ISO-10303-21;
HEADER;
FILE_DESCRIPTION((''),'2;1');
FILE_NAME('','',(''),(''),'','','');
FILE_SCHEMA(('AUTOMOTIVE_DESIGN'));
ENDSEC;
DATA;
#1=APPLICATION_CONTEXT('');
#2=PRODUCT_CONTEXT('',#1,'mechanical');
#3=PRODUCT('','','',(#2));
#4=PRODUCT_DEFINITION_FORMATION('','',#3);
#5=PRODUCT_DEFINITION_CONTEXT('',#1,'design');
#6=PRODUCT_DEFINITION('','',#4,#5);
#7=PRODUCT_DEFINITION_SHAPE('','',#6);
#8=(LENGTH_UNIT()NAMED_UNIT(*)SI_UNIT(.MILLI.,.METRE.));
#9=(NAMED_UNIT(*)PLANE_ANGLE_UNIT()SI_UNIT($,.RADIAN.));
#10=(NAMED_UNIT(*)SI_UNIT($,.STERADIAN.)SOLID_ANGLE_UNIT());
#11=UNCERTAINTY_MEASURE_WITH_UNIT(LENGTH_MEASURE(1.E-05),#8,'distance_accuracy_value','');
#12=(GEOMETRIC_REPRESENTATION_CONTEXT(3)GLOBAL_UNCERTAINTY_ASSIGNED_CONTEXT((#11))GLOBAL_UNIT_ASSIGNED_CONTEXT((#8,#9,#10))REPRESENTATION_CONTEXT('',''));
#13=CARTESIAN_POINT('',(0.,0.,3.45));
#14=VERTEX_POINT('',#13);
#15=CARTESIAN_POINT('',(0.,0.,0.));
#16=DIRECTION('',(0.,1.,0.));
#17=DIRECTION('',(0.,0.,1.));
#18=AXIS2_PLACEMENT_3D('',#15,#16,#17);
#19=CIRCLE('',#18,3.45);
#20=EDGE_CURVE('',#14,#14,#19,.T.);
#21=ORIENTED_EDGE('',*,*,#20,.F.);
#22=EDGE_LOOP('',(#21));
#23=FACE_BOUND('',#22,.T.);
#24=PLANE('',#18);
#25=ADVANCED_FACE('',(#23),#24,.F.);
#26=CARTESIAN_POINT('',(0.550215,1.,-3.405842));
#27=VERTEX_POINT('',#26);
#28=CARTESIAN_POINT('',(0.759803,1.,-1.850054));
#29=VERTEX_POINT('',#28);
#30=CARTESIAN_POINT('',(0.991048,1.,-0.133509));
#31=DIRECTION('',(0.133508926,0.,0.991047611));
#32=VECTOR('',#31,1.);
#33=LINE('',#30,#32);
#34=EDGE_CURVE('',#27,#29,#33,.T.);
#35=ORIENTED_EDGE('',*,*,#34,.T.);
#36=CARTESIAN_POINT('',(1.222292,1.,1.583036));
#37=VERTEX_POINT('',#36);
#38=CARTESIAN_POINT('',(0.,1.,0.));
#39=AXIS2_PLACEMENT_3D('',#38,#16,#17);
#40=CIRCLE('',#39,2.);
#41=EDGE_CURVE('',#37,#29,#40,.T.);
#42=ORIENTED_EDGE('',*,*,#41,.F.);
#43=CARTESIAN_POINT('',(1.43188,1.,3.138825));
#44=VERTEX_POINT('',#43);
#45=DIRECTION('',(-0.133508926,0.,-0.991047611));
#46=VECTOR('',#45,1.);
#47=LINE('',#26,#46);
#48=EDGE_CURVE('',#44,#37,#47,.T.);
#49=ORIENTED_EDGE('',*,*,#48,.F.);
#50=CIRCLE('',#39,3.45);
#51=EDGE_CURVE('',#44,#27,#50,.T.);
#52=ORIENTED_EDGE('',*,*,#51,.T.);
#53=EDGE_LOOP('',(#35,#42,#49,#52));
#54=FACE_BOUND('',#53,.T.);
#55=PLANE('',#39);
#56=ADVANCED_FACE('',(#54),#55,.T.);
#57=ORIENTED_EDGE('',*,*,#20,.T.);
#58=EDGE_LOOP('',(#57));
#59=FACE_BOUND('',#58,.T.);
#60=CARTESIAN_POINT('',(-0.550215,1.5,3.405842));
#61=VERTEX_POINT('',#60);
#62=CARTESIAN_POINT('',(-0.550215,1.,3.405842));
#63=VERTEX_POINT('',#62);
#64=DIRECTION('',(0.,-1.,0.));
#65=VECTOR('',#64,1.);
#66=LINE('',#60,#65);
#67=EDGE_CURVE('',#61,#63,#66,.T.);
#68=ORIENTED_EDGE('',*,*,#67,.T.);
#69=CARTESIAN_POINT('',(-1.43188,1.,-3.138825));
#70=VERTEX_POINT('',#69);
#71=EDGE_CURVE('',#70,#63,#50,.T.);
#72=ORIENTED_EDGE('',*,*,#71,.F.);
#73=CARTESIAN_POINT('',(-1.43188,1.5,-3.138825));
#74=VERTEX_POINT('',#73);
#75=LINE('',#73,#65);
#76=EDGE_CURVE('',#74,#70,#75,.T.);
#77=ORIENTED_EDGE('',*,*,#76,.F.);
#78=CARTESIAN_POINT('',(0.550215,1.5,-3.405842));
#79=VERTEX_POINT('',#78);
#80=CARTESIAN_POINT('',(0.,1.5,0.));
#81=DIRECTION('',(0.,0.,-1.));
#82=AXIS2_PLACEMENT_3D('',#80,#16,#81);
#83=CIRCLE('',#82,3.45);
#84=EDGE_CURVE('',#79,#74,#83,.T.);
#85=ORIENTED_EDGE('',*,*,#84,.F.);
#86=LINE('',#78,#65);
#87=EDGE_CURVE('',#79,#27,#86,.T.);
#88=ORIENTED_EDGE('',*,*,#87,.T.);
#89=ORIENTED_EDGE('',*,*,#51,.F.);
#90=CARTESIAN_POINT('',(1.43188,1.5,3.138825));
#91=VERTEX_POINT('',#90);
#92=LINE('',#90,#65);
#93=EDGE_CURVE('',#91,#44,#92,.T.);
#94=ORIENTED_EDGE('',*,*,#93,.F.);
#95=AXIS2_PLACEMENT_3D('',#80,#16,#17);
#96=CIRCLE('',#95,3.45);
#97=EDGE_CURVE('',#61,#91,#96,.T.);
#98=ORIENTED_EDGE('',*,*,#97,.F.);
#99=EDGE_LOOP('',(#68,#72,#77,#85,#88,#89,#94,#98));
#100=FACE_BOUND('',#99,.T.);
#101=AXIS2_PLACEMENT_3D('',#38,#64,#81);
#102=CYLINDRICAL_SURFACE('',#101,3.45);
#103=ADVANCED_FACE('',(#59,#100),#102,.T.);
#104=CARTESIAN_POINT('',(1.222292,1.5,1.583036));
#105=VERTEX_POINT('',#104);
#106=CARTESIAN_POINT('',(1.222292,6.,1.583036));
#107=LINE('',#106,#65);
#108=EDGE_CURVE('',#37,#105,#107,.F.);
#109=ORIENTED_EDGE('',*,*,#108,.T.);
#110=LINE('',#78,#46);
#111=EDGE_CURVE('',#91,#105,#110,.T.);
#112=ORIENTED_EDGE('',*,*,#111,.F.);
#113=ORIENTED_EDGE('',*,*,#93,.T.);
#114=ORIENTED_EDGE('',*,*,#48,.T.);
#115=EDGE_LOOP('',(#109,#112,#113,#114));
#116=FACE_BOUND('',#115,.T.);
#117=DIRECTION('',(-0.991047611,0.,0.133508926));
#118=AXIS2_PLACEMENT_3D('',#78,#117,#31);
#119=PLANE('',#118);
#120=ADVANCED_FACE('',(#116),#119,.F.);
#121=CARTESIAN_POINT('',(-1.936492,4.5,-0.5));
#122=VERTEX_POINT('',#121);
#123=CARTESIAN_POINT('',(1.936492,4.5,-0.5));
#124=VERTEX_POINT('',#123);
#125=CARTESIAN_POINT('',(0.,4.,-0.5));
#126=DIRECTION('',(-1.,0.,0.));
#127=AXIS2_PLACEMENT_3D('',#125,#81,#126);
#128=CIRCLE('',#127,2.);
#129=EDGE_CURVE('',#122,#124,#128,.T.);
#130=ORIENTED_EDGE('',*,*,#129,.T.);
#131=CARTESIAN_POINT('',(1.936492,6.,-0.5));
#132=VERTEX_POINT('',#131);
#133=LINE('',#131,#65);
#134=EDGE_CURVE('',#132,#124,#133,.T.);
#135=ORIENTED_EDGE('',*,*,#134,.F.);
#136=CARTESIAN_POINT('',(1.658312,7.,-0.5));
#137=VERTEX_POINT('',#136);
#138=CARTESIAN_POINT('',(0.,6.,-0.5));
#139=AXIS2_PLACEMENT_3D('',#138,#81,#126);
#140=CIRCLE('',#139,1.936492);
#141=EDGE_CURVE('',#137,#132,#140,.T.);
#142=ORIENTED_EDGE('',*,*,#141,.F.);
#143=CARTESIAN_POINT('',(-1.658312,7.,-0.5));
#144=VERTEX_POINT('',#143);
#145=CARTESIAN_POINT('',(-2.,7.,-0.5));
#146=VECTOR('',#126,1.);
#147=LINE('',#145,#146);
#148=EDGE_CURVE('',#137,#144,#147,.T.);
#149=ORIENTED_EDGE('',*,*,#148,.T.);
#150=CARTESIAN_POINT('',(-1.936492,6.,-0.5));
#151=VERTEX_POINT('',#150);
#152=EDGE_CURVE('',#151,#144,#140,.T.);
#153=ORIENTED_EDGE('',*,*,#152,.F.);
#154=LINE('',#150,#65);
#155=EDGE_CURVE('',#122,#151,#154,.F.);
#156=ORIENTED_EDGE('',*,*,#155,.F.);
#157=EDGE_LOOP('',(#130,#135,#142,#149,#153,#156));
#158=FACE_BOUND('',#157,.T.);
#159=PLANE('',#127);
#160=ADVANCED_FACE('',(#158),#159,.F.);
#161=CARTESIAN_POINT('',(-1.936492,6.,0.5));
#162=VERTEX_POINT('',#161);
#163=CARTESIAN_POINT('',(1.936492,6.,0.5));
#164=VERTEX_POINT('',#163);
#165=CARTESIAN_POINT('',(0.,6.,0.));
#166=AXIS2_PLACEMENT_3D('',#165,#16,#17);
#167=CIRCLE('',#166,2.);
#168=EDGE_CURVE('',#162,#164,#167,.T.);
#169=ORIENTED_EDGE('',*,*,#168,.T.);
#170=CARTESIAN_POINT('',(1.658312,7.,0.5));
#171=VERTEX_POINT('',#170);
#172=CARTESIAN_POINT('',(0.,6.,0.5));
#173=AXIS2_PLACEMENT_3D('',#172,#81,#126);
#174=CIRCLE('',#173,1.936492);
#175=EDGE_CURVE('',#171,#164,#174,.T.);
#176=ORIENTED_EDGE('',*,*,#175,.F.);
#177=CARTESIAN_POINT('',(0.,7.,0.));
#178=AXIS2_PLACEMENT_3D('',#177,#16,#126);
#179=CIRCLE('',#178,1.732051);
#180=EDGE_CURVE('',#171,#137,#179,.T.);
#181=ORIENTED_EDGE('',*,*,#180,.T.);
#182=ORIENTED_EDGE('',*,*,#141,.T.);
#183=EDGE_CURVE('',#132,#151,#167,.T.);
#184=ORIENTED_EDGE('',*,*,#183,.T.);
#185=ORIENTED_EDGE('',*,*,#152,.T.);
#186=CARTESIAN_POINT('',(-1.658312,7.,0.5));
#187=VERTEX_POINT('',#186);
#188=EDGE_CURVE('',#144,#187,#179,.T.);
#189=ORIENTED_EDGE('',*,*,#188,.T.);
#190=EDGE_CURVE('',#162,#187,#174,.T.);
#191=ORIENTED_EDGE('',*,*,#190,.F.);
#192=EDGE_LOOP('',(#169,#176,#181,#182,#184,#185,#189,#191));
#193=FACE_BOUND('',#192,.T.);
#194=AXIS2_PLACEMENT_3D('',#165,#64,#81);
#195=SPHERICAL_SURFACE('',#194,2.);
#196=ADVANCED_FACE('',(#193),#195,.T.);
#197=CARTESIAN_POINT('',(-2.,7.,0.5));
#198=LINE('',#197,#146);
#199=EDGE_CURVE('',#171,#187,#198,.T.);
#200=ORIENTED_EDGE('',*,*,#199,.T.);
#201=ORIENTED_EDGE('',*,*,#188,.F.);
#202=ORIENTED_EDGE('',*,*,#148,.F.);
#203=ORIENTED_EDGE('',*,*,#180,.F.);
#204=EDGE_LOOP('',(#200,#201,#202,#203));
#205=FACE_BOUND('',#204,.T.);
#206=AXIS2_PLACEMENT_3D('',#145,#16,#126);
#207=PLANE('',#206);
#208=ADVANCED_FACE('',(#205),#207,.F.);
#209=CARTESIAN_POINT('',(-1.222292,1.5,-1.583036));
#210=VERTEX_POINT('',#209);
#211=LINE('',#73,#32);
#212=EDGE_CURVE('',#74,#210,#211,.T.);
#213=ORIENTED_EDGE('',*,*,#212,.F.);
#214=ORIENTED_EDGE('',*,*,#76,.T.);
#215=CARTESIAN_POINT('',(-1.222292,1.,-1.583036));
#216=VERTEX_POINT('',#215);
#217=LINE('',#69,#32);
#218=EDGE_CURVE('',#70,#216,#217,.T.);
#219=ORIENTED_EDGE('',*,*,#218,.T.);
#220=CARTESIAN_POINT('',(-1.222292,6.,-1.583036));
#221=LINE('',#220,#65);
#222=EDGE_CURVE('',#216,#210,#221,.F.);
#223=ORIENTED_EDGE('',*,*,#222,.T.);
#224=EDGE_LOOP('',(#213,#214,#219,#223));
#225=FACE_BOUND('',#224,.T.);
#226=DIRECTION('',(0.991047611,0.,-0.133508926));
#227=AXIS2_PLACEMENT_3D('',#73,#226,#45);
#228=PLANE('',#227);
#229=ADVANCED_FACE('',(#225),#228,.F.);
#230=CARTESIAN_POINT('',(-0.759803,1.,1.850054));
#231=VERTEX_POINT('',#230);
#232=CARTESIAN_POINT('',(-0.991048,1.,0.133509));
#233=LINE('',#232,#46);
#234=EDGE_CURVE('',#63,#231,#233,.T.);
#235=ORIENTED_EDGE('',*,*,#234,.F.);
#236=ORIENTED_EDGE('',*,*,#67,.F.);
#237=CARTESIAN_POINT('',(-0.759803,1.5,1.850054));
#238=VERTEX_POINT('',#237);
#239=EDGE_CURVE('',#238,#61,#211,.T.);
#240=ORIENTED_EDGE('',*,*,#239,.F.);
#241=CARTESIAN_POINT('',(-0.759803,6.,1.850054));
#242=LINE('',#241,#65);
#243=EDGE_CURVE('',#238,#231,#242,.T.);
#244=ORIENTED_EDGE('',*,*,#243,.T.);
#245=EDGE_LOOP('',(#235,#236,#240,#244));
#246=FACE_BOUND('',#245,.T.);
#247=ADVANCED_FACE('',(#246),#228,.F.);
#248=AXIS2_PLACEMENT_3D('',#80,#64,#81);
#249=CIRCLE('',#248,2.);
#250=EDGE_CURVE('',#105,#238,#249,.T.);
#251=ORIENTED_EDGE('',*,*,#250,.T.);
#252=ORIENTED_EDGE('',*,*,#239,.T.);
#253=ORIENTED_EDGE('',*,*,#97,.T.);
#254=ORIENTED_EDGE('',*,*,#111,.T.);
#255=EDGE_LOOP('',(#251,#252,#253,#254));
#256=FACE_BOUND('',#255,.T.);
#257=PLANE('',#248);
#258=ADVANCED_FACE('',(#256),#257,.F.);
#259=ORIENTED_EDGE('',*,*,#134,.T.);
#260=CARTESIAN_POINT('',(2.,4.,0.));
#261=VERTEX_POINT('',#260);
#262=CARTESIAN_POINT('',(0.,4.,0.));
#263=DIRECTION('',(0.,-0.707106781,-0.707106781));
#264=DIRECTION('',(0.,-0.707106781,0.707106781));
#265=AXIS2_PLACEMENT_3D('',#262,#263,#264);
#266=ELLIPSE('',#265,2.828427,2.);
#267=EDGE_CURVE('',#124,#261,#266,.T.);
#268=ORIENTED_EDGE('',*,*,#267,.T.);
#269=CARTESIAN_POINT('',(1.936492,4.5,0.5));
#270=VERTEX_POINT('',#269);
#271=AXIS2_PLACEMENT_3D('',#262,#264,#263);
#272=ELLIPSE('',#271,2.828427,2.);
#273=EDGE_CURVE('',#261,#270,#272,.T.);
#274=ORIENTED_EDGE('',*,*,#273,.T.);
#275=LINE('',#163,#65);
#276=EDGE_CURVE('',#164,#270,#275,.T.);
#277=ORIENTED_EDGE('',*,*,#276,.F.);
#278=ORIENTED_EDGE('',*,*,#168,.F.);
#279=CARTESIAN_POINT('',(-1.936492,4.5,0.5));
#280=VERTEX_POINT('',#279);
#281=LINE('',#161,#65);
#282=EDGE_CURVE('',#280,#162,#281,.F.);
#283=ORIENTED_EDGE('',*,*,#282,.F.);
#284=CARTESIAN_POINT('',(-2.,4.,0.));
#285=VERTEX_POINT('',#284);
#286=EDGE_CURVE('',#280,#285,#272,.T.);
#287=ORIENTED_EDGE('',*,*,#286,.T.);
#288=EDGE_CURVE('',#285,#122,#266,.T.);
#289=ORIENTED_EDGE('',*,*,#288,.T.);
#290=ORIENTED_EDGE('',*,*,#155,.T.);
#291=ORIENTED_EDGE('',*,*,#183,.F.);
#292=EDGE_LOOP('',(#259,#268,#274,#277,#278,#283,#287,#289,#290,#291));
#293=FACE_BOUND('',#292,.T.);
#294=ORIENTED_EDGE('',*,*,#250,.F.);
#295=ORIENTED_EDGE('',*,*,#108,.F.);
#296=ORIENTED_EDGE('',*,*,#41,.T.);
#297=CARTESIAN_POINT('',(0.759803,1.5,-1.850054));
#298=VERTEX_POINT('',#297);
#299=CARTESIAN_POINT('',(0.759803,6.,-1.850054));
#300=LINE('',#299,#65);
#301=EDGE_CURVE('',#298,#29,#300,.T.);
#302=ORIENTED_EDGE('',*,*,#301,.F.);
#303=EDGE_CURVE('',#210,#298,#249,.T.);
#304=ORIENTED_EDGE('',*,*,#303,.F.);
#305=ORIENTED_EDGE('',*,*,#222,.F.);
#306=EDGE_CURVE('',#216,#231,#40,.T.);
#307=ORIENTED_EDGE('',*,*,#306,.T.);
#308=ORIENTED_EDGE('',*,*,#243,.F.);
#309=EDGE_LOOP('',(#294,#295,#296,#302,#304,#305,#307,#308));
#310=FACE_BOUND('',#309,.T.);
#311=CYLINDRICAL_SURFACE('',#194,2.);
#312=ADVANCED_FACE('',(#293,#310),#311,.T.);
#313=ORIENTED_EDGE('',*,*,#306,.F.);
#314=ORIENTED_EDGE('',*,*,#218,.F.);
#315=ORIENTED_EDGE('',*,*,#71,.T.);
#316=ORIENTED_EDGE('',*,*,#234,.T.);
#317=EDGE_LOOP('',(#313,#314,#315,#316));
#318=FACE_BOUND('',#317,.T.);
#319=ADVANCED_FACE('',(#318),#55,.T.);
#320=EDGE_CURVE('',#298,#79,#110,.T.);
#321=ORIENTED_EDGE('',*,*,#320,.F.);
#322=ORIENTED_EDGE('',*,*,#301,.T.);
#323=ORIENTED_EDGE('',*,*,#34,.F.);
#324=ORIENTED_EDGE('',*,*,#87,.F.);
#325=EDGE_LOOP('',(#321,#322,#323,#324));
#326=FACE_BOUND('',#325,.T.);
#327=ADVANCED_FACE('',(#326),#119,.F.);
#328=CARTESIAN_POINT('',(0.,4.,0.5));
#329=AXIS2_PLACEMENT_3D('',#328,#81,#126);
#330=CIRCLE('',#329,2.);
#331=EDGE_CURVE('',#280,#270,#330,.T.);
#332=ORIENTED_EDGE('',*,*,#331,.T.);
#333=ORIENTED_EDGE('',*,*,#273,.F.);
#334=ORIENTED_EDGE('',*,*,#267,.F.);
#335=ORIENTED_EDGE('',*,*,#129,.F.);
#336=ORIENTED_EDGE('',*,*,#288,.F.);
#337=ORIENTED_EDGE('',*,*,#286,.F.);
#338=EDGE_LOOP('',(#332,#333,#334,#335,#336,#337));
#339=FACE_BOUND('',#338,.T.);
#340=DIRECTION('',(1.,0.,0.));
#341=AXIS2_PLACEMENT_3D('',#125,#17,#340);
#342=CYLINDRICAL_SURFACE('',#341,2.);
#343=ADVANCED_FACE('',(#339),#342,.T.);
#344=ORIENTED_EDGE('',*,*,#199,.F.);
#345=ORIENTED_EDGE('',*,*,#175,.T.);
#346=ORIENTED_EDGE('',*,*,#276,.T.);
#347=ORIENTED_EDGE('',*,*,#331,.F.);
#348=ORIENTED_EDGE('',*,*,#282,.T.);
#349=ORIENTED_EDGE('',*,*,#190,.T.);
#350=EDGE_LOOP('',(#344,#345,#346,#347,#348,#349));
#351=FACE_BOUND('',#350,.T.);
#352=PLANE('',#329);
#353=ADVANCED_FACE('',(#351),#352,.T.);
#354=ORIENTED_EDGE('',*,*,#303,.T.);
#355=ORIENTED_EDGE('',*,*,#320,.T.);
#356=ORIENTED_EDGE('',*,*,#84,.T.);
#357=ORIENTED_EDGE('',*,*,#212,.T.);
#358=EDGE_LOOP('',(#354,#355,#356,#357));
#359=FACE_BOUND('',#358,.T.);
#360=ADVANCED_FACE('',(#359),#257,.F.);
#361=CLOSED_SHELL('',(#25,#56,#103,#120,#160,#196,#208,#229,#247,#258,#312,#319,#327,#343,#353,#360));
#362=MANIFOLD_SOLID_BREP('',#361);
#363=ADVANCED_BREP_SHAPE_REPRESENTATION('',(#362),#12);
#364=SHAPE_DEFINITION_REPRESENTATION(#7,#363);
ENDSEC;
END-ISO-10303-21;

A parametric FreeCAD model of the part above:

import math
import FreeCAD as App
import Part
import Sketcher

doc = App.newDocument("Part")
body = doc.addObject("PartDesign::Body", "Body")

# Sketch on XZ plane
sketch1 = doc.addObject("Sketcher::SketchObject", "Sketch")
body.addObject(sketch1)
sketch1.AttachmentSupport = (doc.XZ_Plane, [""])
sketch1.MapMode = "FlatFace"
sketch1.addGeometry(Part.Circle(App.Vector(0, 0, 0), App.Vector(0, 0, 1), 3.5), False)
sketch1.addConstraint([
    Sketcher.Constraint("Coincident", 0, 3, -1, 1),
    Sketcher.Constraint("Diameter", 0, 6.9),
])
pad1 = doc.addObject("PartDesign::Pad", "Pad")
body.addObject(pad1)
pad1.Profile = sketch1
pad1.Length = 1
pad1.Reversed = True

# Sketch on XZ plane
sketch2 = doc.addObject("Sketcher::SketchObject", "Sketch001")
body.addObject(sketch2)
sketch2.AttachmentSupport = (doc.XZ_Plane, [""])
sketch2.MapMode = "FlatFace"
sketch2.AttachmentOffset = App.Placement(App.Vector(0, 0, -1), App.Rotation())
sketch2.addGeometry(Part.Circle(App.Vector(0, 0, 0), App.Vector(0, 0, 1), 2), False)
sketch2.addConstraint([
    Sketcher.Constraint("Coincident", 0, 3, -1, 1),
    Sketcher.Constraint("Diameter", 0, 4.0),
])
pad2 = doc.addObject("PartDesign::Pad", "Pad001")
body.addObject(pad2)
pad2.Profile = sketch2
pad2.Length = 5
pad2.Reversed = True

# Sketch on YZ plane
sketch3 = doc.addObject("Sketcher::SketchObject", "Sketch002")
body.addObject(sketch3)
sketch3.AttachmentSupport = (doc.YZ_Plane, [""])
sketch3.MapMode = "FlatFace"
sketch3.addGeometry([
    Part.LineSegment(App.Vector(0, 1, 0), App.Vector(0, 0, 0)),
    Part.LineSegment(App.Vector(0, 0, 0), App.Vector(8, 0, 0)),
    Part.ArcOfCircle(Part.Circle(App.Vector(6, 0, 0), App.Vector(0, 0, 1), 2), math.radians(0), math.radians(90)),
    Part.LineSegment(App.Vector(6, 2, 0), App.Vector(0, 1, 0)),
], False)
sketch3.addConstraint([
    Sketcher.Constraint("Coincident", 0, 2, 1, 1),
    Sketcher.Constraint("Coincident", 1, 2, 2, 1),
    Sketcher.Constraint("Coincident", 2, 2, 3, 1),
    Sketcher.Constraint("Coincident", 3, 2, 0, 1),
    Sketcher.Constraint("Vertical", 0),
    Sketcher.Constraint("Horizontal", 1),
    Sketcher.Constraint("Coincident", 0, 2, -1, 1),
    Sketcher.Constraint("PointOnObject", 2, 3, -1),
    Sketcher.Constraint("Radius", 2, 2.0),
    Sketcher.Constraint("DistanceX", 1, 1, 1, 2, 8.0),
    Sketcher.Constraint("DistanceY", 0, 2, 0, 1, 1.0),
    Sketcher.Constraint("DistanceX", -1, 1, 2, 2, 6.0),
])
revolution = doc.addObject("PartDesign::Revolution", "Revolution")
body.addObject(revolution)
revolution.Profile = sketch3
revolution.ReferenceAxis = (sketch3, ["H_Axis"])
revolution.Angle = 360

# Sketch on XY plane
sketch4 = doc.addObject("Sketcher::SketchObject", "Sketch003")
body.addObject(sketch4)
sketch4.AttachmentSupport = (doc.XY_Plane, [""])
sketch4.MapMode = "FlatFace"
sketch4.addGeometry([
    Part.LineSegment(App.Vector(-2, 7, 0), App.Vector(-2, 4, 0)),
    Part.ArcOfCircle(Part.Circle(App.Vector(0, 4, 0), App.Vector(0, 0, 1), 2), math.radians(0), math.radians(180)),
    Part.LineSegment(App.Vector(2, 4, 0), App.Vector(2, 7, 0)),
    Part.LineSegment(App.Vector(2, 7, 0), App.Vector(-2, 7, 0)),
], False)
sketch4.addConstraint([
    Sketcher.Constraint("Tangent", 0, 2, 1, 2),
    Sketcher.Constraint("Tangent", 1, 1, 2, 1),
    Sketcher.Constraint("Coincident", 2, 2, 3, 1),
    Sketcher.Constraint("Coincident", 3, 2, 0, 1),
    Sketcher.Constraint("Vertical", 0),
    Sketcher.Constraint("Vertical", 2),
    Sketcher.Constraint("Horizontal", 3),
    Sketcher.Constraint("PointOnObject", 1, 3, -2),
    Sketcher.Constraint("Radius", 1, 2.0),
    Sketcher.Constraint("DistanceY", 0, 2, 0, 1, 3.0),
    Sketcher.Constraint("DistanceY", -1, 1, 1, 3, 4.0),
])
pocket1 = doc.addObject("PartDesign::Pocket", "Pocket")
body.addObject(pocket1)
pocket1.Profile = sketch4
pocket1.Length = 1
pocket1.Midplane = True

# Sketch on XZ plane
sketch5 = doc.addObject("Sketcher::SketchObject", "Sketch004")
body.addObject(sketch5)
sketch5.AttachmentSupport = (doc.XZ_Plane, [""])
sketch5.MapMode = "FlatFace"
sketch5.AttachmentOffset = App.Placement(App.Vector(0, 0, -1), App.Rotation())
sketch5.addGeometry([
    Part.LineSegment(App.Vector(-1.4, -3.1, 0), App.Vector(-0.6, 3.4, 0)),
    Part.ArcOfCircle(Part.Circle(App.Vector(0, 0, 0), App.Vector(0, 0, 1), 3.4), math.radians(65), math.radians(99)),
    Part.LineSegment(App.Vector(1.4, 3.1, 0), App.Vector(0.6, -3.4, 0)),
    Part.ArcOfCircle(Part.Circle(App.Vector(0, 0, 0), App.Vector(0, 0, 1), 3.4), math.radians(-115), math.radians(-81)),
], False)
sketch5.addConstraint([
    Sketcher.Constraint("Coincident", 0, 2, 1, 2),
    Sketcher.Constraint("Coincident", 1, 1, 2, 1),
    Sketcher.Constraint("Coincident", 2, 2, 3, 2),
    Sketcher.Constraint("Coincident", 3, 1, 0, 1),
    Sketcher.Constraint("Coincident", 1, 3, -1, 1),
    Sketcher.Constraint("Coincident", 3, 3, -1, 1),
    Sketcher.Constraint("Equal", 1, 3),
    Sketcher.Constraint("Parallel", 0, 2),
    Sketcher.Constraint("Equal", 0, 2),
    Sketcher.Constraint("Radius", 1, 3.45),
    Sketcher.Constraint("DistanceX", -1, 1, 1, 1, 1.43188),
    Sketcher.Constraint("DistanceX", 0, 2, 2, 2, 1.100431),
])
pad3 = doc.addObject("PartDesign::Pad", "Pad002")
body.addObject(pad3)
pad3.Profile = sketch5
pad3.Length = 0.5
pad3.Reversed = True

doc.recompute()
